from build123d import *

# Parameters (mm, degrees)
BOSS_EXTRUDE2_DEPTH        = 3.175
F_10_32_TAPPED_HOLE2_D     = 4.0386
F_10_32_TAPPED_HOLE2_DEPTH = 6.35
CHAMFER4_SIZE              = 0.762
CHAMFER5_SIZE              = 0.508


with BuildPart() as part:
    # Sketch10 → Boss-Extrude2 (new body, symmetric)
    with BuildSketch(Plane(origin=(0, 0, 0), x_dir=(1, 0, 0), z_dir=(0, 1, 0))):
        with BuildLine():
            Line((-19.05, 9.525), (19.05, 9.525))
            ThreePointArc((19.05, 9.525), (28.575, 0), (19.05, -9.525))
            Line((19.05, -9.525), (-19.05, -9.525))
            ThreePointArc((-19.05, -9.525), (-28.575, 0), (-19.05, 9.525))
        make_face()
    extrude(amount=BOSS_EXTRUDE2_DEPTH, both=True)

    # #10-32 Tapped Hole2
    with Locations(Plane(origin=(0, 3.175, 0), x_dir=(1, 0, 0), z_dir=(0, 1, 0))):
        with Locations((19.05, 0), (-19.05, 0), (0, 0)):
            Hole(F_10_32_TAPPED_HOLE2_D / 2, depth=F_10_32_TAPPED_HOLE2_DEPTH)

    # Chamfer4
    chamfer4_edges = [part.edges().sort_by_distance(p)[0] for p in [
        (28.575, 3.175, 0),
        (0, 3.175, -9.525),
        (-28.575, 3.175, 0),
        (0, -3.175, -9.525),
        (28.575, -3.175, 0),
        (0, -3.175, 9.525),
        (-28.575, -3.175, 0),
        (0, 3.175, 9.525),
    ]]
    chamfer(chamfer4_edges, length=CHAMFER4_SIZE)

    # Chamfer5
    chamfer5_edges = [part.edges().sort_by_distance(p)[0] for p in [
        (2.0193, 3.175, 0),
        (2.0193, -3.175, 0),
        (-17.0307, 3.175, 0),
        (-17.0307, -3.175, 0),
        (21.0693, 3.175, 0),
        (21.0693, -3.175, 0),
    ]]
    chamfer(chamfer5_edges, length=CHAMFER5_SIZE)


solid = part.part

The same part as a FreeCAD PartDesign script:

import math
import FreeCAD as App
import Part
import Sketcher

V = App.Vector
Q = App.Units.Quantity


def edges_at(feature, points):
    """Names of the edges that pass closest to the given points."""
    edges = feature.Shape.Edges
    near = lambda p: min(range(len(edges)), key=lambda i: edges[i].distToShape(Part.Vertex(*p))[0])
    return sorted({f"Edge{near(p) + 1}" for p in points})

doc = App.newDocument("Part")
body = doc.addObject("PartDesign::Body", "Body")

# Sketch on XZ plane
sketch1 = doc.addObject("Sketcher::SketchObject", "Sketch")
body.addObject(sketch1)
sketch1.AttachmentSupport = (doc.XZ_Plane, [""])
sketch1.MapMode = "FlatFace"
sketch1.addGeometry([
    Part.LineSegment(V(19, -10, 0), V(-19, -10, 0)),
    Part.ArcOfCircle(Part.Circle(V(-19, 0, 0), V(0, 0, 1), 10), math.radians(90), math.radians(270)),
    Part.LineSegment(V(-19, 10, 0), V(19, 10, 0)),
    Part.ArcOfCircle(Part.Circle(V(19, 0, 0), V(0, 0, 1), 10), math.radians(-90), math.radians(90)),
], False)
sketch1.addConstraint([
    Sketcher.Constraint("Tangent", 0, 2, 1, 2),
    Sketcher.Constraint("Tangent", 1, 1, 2, 1),
    Sketcher.Constraint("Tangent", 2, 2, 3, 2),
    Sketcher.Constraint("Tangent", 3, 1, 0, 1),
    Sketcher.Constraint("Horizontal", 0),
    Sketcher.Constraint("Horizontal", 2),
    Sketcher.Constraint("Symmetric", 1, 3, 3, 3, -1, 1),
    Sketcher.Constraint("DistanceX", 0, 2, 0, 1, Q("1.5 in")),
    Sketcher.Constraint("Radius", 1, Q("0.375 in")),
])
pad1 = doc.addObject("PartDesign::Pad", "Pad")
body.addObject(pad1)
pad1.Profile = sketch1
pad1.Length = Q("0.25 in")
pad1.Midplane = True

# Sketch on XZ plane
sketch2 = doc.addObject("Sketcher::SketchObject", "Sketch001")
body.addObject(sketch2)
sketch2.AttachmentSupport = (doc.XZ_Plane, [""])
sketch2.MapMode = "FlatFace"
sketch2.AttachmentOffset = App.Placement(V(0, 0, -0.125 * 25.4), App.Rotation())
sketch2.addGeometry([
    Part.Circle(V(19.1, 0, 0), V(0, 0, 1), 2),
    Part.Circle(V(-19.1, 0, 0), V(0, 0, 1), 2),
    Part.Circle(V(0, 0, 0), V(0, 0, 1), 2),
], False)
sketch2.addConstraint([
    Sketcher.Constraint("Coincident", 2, 3, -1, 1),
    Sketcher.Constraint("Equal", 0, 1),
    Sketcher.Constraint("Equal", 1, 2),
    Sketcher.Constraint("Symmetric", 0, 3, 1, 3, -1, 1),
    Sketcher.Constraint("PointOnObject", 0, 3, -1),
    Sketcher.Constraint("Diameter", 0, Q("0.159 in")),
    Sketcher.Constraint("DistanceX", 1, 3, 0, 3, Q("1.5 in")),
])
doc.recompute()
hole = doc.addObject("PartDesign::Hole", "Hole")
body.addObject(hole)
hole.Profile = sketch2
hole.ThreadType = "None"
hole.Diameter = Q("0.159 in")
hole.DepthType = "Dimension"
hole.Depth = Q("0.25 in")
hole.DrillPoint = "Flat"
hole.Reversed = True
doc.recompute()

chamfer = doc.addObject("PartDesign::Chamfer", "Chamfer")
body.addObject(chamfer)
chamfer.Base = (hole, edges_at(hole, [
    (28.575, 3.175, 0),
    (0, 3.175, -9.525),
    (-28.575, 3.175, 0),
    (0, -3.175, -9.525),
    (28.575, -3.175, 0),
    (0, -3.175, 9.525),
    (-28.575, -3.175, 0),
    (0, 3.175, 9.525),
]))
chamfer.Size = Q("0.03 in")
doc.recompute()

chamfer2 = doc.addObject("PartDesign::Chamfer", "Chamfer001")
body.addObject(chamfer2)
chamfer2.Base = (chamfer, edges_at(chamfer, [
    (2.019, 3.175, 0),
    (2.019, -3.175, 0),
    (-17.031, 3.175, 0),
    (-17.031, -3.175, 0),
    (21.069, 3.175, 0),
    (21.069, -3.175, 0),
]))
chamfer2.Size = Q("0.02 in")

doc.recompute()
